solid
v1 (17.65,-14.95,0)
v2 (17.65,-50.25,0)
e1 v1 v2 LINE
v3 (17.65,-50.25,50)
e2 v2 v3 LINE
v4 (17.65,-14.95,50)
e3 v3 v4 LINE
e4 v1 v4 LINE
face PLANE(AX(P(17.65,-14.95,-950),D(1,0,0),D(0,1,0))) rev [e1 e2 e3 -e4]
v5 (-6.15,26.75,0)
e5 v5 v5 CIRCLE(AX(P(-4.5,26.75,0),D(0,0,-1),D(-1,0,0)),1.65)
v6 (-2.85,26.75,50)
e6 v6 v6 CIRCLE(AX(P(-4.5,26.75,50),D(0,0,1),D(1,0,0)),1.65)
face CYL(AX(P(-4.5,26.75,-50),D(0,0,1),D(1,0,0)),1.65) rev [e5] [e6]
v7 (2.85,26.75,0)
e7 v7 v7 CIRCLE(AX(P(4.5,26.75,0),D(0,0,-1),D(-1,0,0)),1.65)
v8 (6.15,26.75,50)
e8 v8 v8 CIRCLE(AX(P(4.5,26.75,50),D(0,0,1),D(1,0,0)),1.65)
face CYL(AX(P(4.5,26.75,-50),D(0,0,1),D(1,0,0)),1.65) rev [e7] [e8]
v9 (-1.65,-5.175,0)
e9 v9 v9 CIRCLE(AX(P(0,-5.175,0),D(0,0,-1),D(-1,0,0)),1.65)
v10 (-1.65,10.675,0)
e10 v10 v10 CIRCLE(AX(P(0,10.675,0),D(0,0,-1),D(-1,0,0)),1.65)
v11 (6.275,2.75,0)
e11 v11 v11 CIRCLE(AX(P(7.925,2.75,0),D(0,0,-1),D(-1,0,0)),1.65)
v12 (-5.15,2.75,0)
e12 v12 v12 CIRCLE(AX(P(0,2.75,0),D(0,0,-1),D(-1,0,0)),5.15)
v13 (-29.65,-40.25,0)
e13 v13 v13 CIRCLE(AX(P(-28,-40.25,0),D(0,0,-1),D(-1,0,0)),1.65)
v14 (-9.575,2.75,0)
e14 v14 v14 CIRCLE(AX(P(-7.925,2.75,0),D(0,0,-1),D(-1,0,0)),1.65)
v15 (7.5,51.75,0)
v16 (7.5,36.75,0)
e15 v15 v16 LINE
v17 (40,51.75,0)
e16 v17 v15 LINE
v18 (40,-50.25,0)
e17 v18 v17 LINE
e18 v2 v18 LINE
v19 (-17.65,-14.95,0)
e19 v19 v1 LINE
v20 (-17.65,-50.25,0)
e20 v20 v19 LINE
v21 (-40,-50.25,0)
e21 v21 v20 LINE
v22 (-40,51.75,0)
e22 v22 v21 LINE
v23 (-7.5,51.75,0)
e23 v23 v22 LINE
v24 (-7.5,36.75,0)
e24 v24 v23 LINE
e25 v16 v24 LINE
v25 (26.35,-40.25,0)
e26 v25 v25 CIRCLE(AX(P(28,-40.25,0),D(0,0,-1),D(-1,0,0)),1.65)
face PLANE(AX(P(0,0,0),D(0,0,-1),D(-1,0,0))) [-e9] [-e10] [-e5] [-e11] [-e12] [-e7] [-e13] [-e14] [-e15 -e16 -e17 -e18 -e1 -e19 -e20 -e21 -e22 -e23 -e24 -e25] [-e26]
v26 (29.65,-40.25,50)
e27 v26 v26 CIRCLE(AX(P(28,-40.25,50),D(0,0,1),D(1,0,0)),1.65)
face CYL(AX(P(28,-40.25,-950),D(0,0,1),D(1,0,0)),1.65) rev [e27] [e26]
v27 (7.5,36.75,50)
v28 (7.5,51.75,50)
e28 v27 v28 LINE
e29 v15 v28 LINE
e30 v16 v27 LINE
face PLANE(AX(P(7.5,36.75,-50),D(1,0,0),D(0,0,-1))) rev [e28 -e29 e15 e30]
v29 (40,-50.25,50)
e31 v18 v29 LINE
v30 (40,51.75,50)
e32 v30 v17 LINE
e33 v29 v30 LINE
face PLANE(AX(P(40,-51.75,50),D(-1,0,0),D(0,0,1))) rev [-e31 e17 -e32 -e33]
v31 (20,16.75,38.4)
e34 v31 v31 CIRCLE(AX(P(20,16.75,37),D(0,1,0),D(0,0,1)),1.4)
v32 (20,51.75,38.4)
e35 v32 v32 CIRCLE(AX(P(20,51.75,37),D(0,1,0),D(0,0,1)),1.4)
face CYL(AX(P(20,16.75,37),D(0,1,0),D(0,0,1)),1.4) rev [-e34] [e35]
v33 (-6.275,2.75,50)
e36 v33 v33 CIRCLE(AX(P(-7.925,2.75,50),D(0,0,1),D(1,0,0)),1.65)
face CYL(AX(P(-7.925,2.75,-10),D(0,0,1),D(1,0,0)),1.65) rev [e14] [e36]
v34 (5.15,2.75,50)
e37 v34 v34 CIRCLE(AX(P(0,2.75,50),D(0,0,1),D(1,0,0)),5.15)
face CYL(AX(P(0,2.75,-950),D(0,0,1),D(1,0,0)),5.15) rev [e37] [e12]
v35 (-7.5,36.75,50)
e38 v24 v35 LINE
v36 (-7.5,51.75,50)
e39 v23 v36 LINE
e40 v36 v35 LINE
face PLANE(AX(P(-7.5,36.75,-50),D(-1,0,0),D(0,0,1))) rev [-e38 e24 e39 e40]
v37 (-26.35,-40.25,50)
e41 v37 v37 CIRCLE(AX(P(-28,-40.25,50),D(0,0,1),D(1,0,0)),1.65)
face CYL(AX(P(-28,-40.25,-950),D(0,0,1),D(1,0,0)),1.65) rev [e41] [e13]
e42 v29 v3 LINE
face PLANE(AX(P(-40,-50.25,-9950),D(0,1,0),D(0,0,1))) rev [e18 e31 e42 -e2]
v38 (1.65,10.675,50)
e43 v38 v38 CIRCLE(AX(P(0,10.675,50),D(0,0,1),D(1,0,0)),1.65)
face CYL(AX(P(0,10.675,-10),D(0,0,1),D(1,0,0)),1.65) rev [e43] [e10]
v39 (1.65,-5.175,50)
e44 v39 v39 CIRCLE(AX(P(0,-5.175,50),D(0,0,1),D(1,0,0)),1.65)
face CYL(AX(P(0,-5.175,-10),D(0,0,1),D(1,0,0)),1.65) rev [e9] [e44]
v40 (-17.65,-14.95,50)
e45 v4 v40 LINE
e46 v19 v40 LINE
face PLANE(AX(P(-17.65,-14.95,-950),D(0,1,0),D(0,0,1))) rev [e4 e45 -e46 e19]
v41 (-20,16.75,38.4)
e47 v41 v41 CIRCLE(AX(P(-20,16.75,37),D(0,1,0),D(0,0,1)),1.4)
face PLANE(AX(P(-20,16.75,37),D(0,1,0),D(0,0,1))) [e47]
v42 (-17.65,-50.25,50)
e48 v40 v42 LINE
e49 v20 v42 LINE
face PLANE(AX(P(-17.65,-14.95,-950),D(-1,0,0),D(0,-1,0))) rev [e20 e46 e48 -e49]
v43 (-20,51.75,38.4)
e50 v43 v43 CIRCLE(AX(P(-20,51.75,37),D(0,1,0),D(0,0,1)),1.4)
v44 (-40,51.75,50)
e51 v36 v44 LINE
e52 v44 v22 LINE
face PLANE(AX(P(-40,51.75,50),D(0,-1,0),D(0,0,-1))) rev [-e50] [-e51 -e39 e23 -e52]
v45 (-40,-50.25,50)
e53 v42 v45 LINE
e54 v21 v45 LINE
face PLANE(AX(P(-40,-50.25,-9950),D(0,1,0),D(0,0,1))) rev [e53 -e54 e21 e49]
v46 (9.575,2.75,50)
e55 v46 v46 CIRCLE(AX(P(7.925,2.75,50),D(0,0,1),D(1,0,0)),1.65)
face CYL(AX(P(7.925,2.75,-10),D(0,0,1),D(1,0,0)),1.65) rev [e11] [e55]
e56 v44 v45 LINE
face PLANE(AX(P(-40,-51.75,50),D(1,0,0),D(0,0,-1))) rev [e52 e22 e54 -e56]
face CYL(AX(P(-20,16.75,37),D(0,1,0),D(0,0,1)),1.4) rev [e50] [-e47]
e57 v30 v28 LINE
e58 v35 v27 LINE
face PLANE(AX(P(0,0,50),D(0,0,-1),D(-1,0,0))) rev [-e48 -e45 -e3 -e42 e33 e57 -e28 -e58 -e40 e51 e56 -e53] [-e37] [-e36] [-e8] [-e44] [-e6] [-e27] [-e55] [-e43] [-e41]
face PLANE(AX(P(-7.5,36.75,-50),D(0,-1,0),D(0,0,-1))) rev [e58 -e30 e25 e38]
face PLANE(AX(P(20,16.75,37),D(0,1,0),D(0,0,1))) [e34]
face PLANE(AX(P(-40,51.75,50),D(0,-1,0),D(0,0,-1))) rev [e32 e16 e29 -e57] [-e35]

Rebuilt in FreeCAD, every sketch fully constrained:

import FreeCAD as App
import Part
import Sketcher

doc = App.newDocument("Part")
body = doc.addObject("PartDesign::Body", "Body")

sketch1 = doc.addObject("Sketcher::SketchObject", "Sketch")
body.addObject(sketch1)
sketch1.AttachmentSupport = (doc.XY_Plane, [""])
sketch1.MapMode = "FlatFace"
sketch1.addGeometry(Part.LineSegment(App.Vector(-40, 51.75, 0), App.Vector(-40, -51.75, 0)), False)
sketch1.addGeometry(Part.LineSegment(App.Vector(-40, -51.75, 0), App.Vector(40, -51.75, 0)), False)
sketch1.addGeometry(Part.LineSegment(App.Vector(40, -51.75, 0), App.Vector(40, 51.75, 0)), False)
sketch1.addGeometry(Part.LineSegment(App.Vector(40, 51.75, 0), App.Vector(-40, 51.75, 0)), False)
sketch1.addConstraint(Sketcher.Constraint("Coincident", 0, 2, 1, 1))
sketch1.addConstraint(Sketcher.Constraint("Coincident", 1, 2, 2, 1))
sketch1.addConstraint(Sketcher.Constraint("Coincident", 2, 2, 3, 1))
sketch1.addConstraint(Sketcher.Constraint("Coincident", 3, 2, 0, 1))
sketch1.addConstraint(Sketcher.Constraint("Vertical", 0))
sketch1.addConstraint(Sketcher.Constraint("Horizontal", 1))
sketch1.addConstraint(Sketcher.Constraint("Vertical", 2))
sketch1.addConstraint(Sketcher.Constraint("Horizontal", 3))
sketch1.addConstraint(Sketcher.Constraint("Symmetric", 0, 2, 2, 2, -1, 1))
sketch1.addConstraint(Sketcher.Constraint("DistanceX", 1, 1, 1, 2, 80.0))
sketch1.addConstraint(Sketcher.Constraint("DistanceY", 0, 2, 0, 1, 103.5))
pad1 = doc.addObject("PartDesign::Pad", "Pad")
body.addObject(pad1)
pad1.Profile = sketch1
pad1.Length = 50

sketch2 = doc.addObject("Sketcher::SketchObject", "Sketch001")
body.addObject(sketch2)
sketch2.AttachmentSupport = (doc.XY_Plane, [""])
sketch2.MapMode = "FlatFace"
sketch2.AttachmentOffset = App.Placement(App.Vector(0, 0, 50), App.Rotation())
sketch2.addGeometry(Part.Circle(App.Vector(7.925, 2.75, 0), App.Vector(0, 0, 1), 1.65), False)
sketch2.addGeometry(Part.Circle(App.Vector(-7.925, 2.75, 0), App.Vector(0, 0, 1), 1.65), False)
sketch2.addGeometry(Part.Circle(App.Vector(0, 10.675, 0), App.Vector(0, 0, 1), 1.65), False)
sketch2.addGeometry(Part.Circle(App.Vector(0, -5.175, 0), App.Vector(0, 0, 1), 1.65), False)
sketch2.addConstraint(Sketcher.Constraint("Equal", 0, 1))
sketch2.addConstraint(Sketcher.Constraint("Equal", 1, 2))
sketch2.addConstraint(Sketcher.Constraint("Equal", 2, 3))
sketch2.addConstraint(Sketcher.Constraint("Symmetric", 0, 3, 1, 3, -2))
sketch2.addConstraint(Sketcher.Constraint("PointOnObject", 2, 3, -2))
sketch2.addConstraint(Sketcher.Constraint("PointOnObject", 3, 3, -2))
sketch2.addConstraint(Sketcher.Constraint("Diameter", 0, 3.3))
sketch2.addConstraint(Sketcher.Constraint("DistanceY", -1, 1, 0, 3, 2.75))
sketch2.addConstraint(Sketcher.Constraint("DistanceX", 1, 3, 0, 3, 15.85))
sketch2.addConstraint(Sketcher.Constraint("DistanceY", 3, 3, 2, 3, 15.85))
sketch2.addConstraint(Sketcher.Constraint("DistanceY", -1, 1, 2, 3, 10.675))
pocket1 = doc.addObject("PartDesign::Pocket", "Pocket")
body.addObject(pocket1)
pocket1.Profile = sketch2
pocket1.Length = 60

sketch3 = doc.addObject("Sketcher::SketchObject", "Sketch002")
body.addObject(sketch3)
sketch3.AttachmentSupport = (doc.XY_Plane, [""])
sketch3.MapMode = "FlatFace"
sketch3.AttachmentOffset = App.Placement(App.Vector(0, 0, 50), App.Rotation())
sketch3.addGeometry(Part.LineSegment(App.Vector(-7.5, 51.75, 0), App.Vector(-7.5, 36.75, 0)), False)
sketch3.addGeometry(Part.LineSegment(App.Vector(-7.5, 36.75, 0), App.Vector(7.5, 36.75, 0)), False)
sketch3.addGeometry(Part.LineSegment(App.Vector(7.5, 36.75, 0), App.Vector(7.5, 51.75, 0)), False)
sketch3.addGeometry(Part.LineSegment(App.Vector(7.5, 51.75, 0), App.Vector(-7.5, 51.75, 0)), False)
sketch3.addConstraint(Sketcher.Constraint("Coincident", 0, 2, 1, 1))
sketch3.addConstraint(Sketcher.Constraint("Coincident", 1, 2, 2, 1))
sketch3.addConstraint(Sketcher.Constraint("Coincident", 2, 2, 3, 1))
sketch3.addConstraint(Sketcher.Constraint("Coincident", 3, 2, 0, 1))
sketch3.addConstraint(Sketcher.Constraint("Vertical", 0))
sketch3.addConstraint(Sketcher.Constraint("Horizontal", 1))
sketch3.addConstraint(Sketcher.Constraint("Vertical", 2))
sketch3.addConstraint(Sketcher.Constraint("Horizontal", 3))
sketch3.addConstraint(Sketcher.Constraint("Equal", 3, 0))
sketch3.addConstraint(Sketcher.Constraint("DistanceX", 1, 1, 1, 2, 15.0))
sketch3.addConstraint(Sketcher.Constraint("DistanceX", 0, 2, -1, 1, 7.5))
sketch3.addConstraint(Sketcher.Constraint("DistanceY", -1, 1, 0, 2, 36.75))
pocket2 = doc.addObject("PartDesign::Pocket", "Pocket001")
body.addObject(pocket2)
pocket2.Profile = sketch3
pocket2.Length = 100

sketch4 = doc.addObject("Sketcher::SketchObject", "Sketch003")
body.addObject(sketch4)
sketch4.AttachmentSupport = (doc.XY_Plane, [""])
sketch4.MapMode = "FlatFace"
sketch4.AttachmentOffset = App.Placement(App.Vector(0, 0, 50), App.Rotation())
sketch4.addGeometry(Part.Circle(App.Vector(4.5, 26.75, 0), App.Vector(0, 0, 1), 1.65), False)
sketch4.addGeometry(Part.Circle(App.Vector(-4.5, 26.75, 0), App.Vector(0, 0, 1), 1.65), False)
sketch4.addConstraint(Sketcher.Constraint("Equal", 0, 1))
sketch4.addConstraint(Sketcher.Constraint("Symmetric", 0, 3, 1, 3, -2))
sketch4.addConstraint(Sketcher.Constraint("Diameter", 0, 3.3))
sketch4.addConstraint(Sketcher.Constraint("DistanceX", 1, 3, 0, 3, 9.0))
sketch4.addConstraint(Sketcher.Constraint("DistanceY", -1, 1, 0, 3, 26.75))
pocket3 = doc.addObject("PartDesign::Pocket", "Pocket002")
body.addObject(pocket3)
pocket3.Profile = sketch4
pocket3.Length = 100

sketch5 = doc.addObject("Sketcher::SketchObject", "Sketch004")
body.addObject(sketch5)
sketch5.AttachmentSupport = (doc.XY_Plane, [""])
sketch5.MapMode = "FlatFace"
sketch5.AttachmentOffset = App.Placement(App.Vector(0, 0, 50), App.Rotation())
sketch5.addGeometry(Part.Circle(App.Vector(0, 2.75, 0), App.Vector(0, 0, 1), 5.15), False)
sketch5.addConstraint(Sketcher.Constraint("PointOnObject", 0, 3, -2))
sketch5.addConstraint(Sketcher.Constraint("Diameter", 0, 10.3))
sketch5.addConstraint(Sketcher.Constraint("DistanceY", -1, 1, 0, 3, 2.75))
pocket4 = doc.addObject("PartDesign::Pocket", "Pocket003")
body.addObject(pocket4)
pocket4.Profile = sketch5
pocket4.Length = 1000

sketch6 = doc.addObject("Sketcher::SketchObject", "Sketch005")
body.addObject(sketch6)
sketch6.AttachmentSupport = (doc.XY_Plane, [""])
sketch6.MapMode = "FlatFace"
sketch6.AttachmentOffset = App.Placement(App.Vector(0, 0, 50), App.Rotation())
sketch6.addGeometry(Part.LineSegment(App.Vector(-40, -50.25, 0), App.Vector(-40, -51.75, 0)), False)
sketch6.addGeometry(Part.LineSegment(App.Vector(-40, -51.75, 0), App.Vector(40, -51.75, 0)), False)
sketch6.addGeometry(Part.LineSegment(App.Vector(40, -51.75, 0), App.Vector(40, -50.25, 0)), False)
sketch6.addGeometry(Part.LineSegment(App.Vector(40, -50.25, 0), App.Vector(-40, -50.25, 0)), False)
sketch6.addConstraint(Sketcher.Constraint("Coincident", 0, 2, 1, 1))
sketch6.addConstraint(Sketcher.Constraint("Coincident", 1, 2, 2, 1))
sketch6.addConstraint(Sketcher.Constraint("Coincident", 2, 2, 3, 1))
sketch6.addConstraint(Sketcher.Constraint("Coincident", 3, 2, 0, 1))
sketch6.addConstraint(Sketcher.Constraint("Vertical", 0))
sketch6.addConstraint(Sketcher.Constraint("Horizontal", 1))
sketch6.addConstraint(Sketcher.Constraint("Vertical", 2))
sketch6.addConstraint(Sketcher.Constraint("Horizontal", 3))
sketch6.addConstraint(Sketcher.Constraint("DistanceX", 1, 1, 1, 2, 80.0))
sketch6.addConstraint(Sketcher.Constraint("DistanceY", 0, 2, 0, 1, 1.5))
sketch6.addConstraint(Sketcher.Constraint("DistanceX", 0, 2, -1, 1, 40.0))
sketch6.addConstraint(Sketcher.Constraint("DistanceY", 0, 2, -1, 1, 51.75))
pocket5 = doc.addObject("PartDesign::Pocket", "Pocket004")
body.addObject(pocket5)
pocket5.Profile = sketch6
pocket5.Length = 10000

sketch7 = doc.addObject("Sketcher::SketchObject", "Sketch006")
body.addObject(sketch7)
sketch7.AttachmentSupport = (doc.XY_Plane, [""])
sketch7.MapMode = "FlatFace"
sketch7.AttachmentOffset = App.Placement(App.Vector(0, 0, 50), App.Rotation())
sketch7.addGeometry(Part.LineSegment(App.Vector(-17.65, -14.95, 0), App.Vector(-17.65, -50.25, 0)), False)
sketch7.addGeometry(Part.LineSegment(App.Vector(-17.65, -50.25, 0), App.Vector(17.65, -50.25, 0)), False)
sketch7.addGeometry(Part.LineSegment(App.Vector(17.65, -50.25, 0), App.Vector(17.65, -14.95, 0)), False)
sketch7.addGeometry(Part.LineSegment(App.Vector(17.65, -14.95, 0), App.Vector(-17.65, -14.95, 0)), False)
sketch7.addConstraint(Sketcher.Constraint("Coincident", 0, 2, 1, 1))
sketch7.addConstraint(Sketcher.Constraint("Coincident", 1, 2, 2, 1))
sketch7.addConstraint(Sketcher.Constraint("Coincident", 2, 2, 3, 1))
sketch7.addConstraint(Sketcher.Constraint("Coincident", 3, 2, 0, 1))
sketch7.addConstraint(Sketcher.Constraint("Vertical", 0))
sketch7.addConstraint(Sketcher.Constraint("Horizontal", 1))
sketch7.addConstraint(Sketcher.Constraint("Vertical", 2))
sketch7.addConstraint(Sketcher.Constraint("Horizontal", 3))
sketch7.addConstraint(Sketcher.Constraint("Equal", 3, 0))
sketch7.addConstraint(Sketcher.Constraint("DistanceX", 1, 1, 1, 2, 35.3))
sketch7.addConstraint(Sketcher.Constraint("DistanceX", 0, 2, -1, 1, 17.65))
sketch7.addConstraint(Sketcher.Constraint("DistanceY", 0, 2, -1, 1, 50.25))
pocket6 = doc.addObject("PartDesign::Pocket", "Pocket005")
body.addObject(pocket6)
pocket6.Profile = sketch7
pocket6.Length = 1000

sketch8 = doc.addObject("Sketcher::SketchObject", "Sketch007")
body.addObject(sketch8)
sketch8.AttachmentSupport = (doc.XY_Plane, [""])
sketch8.MapMode = "FlatFace"
sketch8.AttachmentOffset = App.Placement(App.Vector(0, 0, 50), App.Rotation())
sketch8.addGeometry(Part.Circle(App.Vector(28, -40.25, 0), App.Vector(0, 0, 1), 1.65), False)
sketch8.addGeometry(Part.Circle(App.Vector(-28, -40.25, 0), App.Vector(0, 0, 1), 1.65), False)
sketch8.addConstraint(Sketcher.Constraint("Equal", 0, 1))
sketch8.addConstraint(Sketcher.Constraint("Symmetric", 0, 3, 1, 3, -2))
sketch8.addConstraint(Sketcher.Constraint("Diameter", 0, 3.3))
sketch8.addConstraint(Sketcher.Constraint("DistanceX", -1, 1, 0, 3, 28.0))
sketch8.addConstraint(Sketcher.Constraint("DistanceY", 0, 3, -1, 1, 40.25))
pocket7 = doc.addObject("PartDesign::Pocket", "Pocket006")
body.addObject(pocket7)
pocket7.Profile = sketch8
pocket7.Length = 1000

sketch9 = doc.addObject("Sketcher::SketchObject", "Sketch008")
body.addObject(sketch9)
sketch9.AttachmentSupport = (doc.XZ_Plane, [""])
sketch9.MapMode = "FlatFace"
sketch9.AttachmentOffset = App.Placement(App.Vector(0, 0, -51.75), App.Rotation())
sketch9.addGeometry(Part.Circle(App.Vector(20, 37, 0), App.Vector(0, 0, 1), 1.4), False)
sketch9.addGeometry(Part.Circle(App.Vector(-20, 37, 0), App.Vector(0, 0, 1), 1.4), False)
sketch9.addConstraint(Sketcher.Constraint("Equal", 0, 1))
sketch9.addConstraint(Sketcher.Constraint("Symmetric", 0, 3, 1, 3, -2))
sketch9.addConstraint(Sketcher.Constraint("Diameter", 0, 2.8))
sketch9.addConstraint(Sketcher.Constraint("DistanceX", -1, 1, 0, 3, 20.0))
sketch9.addConstraint(Sketcher.Constraint("DistanceY", -1, 1, 0, 3, 37.0))
pocket8 = doc.addObject("PartDesign::Pocket", "Pocket007")
body.addObject(pocket8)
pocket8.Profile = sketch9
pocket8.Length = 35
pocket8.Reversed = True

doc.recompute()
